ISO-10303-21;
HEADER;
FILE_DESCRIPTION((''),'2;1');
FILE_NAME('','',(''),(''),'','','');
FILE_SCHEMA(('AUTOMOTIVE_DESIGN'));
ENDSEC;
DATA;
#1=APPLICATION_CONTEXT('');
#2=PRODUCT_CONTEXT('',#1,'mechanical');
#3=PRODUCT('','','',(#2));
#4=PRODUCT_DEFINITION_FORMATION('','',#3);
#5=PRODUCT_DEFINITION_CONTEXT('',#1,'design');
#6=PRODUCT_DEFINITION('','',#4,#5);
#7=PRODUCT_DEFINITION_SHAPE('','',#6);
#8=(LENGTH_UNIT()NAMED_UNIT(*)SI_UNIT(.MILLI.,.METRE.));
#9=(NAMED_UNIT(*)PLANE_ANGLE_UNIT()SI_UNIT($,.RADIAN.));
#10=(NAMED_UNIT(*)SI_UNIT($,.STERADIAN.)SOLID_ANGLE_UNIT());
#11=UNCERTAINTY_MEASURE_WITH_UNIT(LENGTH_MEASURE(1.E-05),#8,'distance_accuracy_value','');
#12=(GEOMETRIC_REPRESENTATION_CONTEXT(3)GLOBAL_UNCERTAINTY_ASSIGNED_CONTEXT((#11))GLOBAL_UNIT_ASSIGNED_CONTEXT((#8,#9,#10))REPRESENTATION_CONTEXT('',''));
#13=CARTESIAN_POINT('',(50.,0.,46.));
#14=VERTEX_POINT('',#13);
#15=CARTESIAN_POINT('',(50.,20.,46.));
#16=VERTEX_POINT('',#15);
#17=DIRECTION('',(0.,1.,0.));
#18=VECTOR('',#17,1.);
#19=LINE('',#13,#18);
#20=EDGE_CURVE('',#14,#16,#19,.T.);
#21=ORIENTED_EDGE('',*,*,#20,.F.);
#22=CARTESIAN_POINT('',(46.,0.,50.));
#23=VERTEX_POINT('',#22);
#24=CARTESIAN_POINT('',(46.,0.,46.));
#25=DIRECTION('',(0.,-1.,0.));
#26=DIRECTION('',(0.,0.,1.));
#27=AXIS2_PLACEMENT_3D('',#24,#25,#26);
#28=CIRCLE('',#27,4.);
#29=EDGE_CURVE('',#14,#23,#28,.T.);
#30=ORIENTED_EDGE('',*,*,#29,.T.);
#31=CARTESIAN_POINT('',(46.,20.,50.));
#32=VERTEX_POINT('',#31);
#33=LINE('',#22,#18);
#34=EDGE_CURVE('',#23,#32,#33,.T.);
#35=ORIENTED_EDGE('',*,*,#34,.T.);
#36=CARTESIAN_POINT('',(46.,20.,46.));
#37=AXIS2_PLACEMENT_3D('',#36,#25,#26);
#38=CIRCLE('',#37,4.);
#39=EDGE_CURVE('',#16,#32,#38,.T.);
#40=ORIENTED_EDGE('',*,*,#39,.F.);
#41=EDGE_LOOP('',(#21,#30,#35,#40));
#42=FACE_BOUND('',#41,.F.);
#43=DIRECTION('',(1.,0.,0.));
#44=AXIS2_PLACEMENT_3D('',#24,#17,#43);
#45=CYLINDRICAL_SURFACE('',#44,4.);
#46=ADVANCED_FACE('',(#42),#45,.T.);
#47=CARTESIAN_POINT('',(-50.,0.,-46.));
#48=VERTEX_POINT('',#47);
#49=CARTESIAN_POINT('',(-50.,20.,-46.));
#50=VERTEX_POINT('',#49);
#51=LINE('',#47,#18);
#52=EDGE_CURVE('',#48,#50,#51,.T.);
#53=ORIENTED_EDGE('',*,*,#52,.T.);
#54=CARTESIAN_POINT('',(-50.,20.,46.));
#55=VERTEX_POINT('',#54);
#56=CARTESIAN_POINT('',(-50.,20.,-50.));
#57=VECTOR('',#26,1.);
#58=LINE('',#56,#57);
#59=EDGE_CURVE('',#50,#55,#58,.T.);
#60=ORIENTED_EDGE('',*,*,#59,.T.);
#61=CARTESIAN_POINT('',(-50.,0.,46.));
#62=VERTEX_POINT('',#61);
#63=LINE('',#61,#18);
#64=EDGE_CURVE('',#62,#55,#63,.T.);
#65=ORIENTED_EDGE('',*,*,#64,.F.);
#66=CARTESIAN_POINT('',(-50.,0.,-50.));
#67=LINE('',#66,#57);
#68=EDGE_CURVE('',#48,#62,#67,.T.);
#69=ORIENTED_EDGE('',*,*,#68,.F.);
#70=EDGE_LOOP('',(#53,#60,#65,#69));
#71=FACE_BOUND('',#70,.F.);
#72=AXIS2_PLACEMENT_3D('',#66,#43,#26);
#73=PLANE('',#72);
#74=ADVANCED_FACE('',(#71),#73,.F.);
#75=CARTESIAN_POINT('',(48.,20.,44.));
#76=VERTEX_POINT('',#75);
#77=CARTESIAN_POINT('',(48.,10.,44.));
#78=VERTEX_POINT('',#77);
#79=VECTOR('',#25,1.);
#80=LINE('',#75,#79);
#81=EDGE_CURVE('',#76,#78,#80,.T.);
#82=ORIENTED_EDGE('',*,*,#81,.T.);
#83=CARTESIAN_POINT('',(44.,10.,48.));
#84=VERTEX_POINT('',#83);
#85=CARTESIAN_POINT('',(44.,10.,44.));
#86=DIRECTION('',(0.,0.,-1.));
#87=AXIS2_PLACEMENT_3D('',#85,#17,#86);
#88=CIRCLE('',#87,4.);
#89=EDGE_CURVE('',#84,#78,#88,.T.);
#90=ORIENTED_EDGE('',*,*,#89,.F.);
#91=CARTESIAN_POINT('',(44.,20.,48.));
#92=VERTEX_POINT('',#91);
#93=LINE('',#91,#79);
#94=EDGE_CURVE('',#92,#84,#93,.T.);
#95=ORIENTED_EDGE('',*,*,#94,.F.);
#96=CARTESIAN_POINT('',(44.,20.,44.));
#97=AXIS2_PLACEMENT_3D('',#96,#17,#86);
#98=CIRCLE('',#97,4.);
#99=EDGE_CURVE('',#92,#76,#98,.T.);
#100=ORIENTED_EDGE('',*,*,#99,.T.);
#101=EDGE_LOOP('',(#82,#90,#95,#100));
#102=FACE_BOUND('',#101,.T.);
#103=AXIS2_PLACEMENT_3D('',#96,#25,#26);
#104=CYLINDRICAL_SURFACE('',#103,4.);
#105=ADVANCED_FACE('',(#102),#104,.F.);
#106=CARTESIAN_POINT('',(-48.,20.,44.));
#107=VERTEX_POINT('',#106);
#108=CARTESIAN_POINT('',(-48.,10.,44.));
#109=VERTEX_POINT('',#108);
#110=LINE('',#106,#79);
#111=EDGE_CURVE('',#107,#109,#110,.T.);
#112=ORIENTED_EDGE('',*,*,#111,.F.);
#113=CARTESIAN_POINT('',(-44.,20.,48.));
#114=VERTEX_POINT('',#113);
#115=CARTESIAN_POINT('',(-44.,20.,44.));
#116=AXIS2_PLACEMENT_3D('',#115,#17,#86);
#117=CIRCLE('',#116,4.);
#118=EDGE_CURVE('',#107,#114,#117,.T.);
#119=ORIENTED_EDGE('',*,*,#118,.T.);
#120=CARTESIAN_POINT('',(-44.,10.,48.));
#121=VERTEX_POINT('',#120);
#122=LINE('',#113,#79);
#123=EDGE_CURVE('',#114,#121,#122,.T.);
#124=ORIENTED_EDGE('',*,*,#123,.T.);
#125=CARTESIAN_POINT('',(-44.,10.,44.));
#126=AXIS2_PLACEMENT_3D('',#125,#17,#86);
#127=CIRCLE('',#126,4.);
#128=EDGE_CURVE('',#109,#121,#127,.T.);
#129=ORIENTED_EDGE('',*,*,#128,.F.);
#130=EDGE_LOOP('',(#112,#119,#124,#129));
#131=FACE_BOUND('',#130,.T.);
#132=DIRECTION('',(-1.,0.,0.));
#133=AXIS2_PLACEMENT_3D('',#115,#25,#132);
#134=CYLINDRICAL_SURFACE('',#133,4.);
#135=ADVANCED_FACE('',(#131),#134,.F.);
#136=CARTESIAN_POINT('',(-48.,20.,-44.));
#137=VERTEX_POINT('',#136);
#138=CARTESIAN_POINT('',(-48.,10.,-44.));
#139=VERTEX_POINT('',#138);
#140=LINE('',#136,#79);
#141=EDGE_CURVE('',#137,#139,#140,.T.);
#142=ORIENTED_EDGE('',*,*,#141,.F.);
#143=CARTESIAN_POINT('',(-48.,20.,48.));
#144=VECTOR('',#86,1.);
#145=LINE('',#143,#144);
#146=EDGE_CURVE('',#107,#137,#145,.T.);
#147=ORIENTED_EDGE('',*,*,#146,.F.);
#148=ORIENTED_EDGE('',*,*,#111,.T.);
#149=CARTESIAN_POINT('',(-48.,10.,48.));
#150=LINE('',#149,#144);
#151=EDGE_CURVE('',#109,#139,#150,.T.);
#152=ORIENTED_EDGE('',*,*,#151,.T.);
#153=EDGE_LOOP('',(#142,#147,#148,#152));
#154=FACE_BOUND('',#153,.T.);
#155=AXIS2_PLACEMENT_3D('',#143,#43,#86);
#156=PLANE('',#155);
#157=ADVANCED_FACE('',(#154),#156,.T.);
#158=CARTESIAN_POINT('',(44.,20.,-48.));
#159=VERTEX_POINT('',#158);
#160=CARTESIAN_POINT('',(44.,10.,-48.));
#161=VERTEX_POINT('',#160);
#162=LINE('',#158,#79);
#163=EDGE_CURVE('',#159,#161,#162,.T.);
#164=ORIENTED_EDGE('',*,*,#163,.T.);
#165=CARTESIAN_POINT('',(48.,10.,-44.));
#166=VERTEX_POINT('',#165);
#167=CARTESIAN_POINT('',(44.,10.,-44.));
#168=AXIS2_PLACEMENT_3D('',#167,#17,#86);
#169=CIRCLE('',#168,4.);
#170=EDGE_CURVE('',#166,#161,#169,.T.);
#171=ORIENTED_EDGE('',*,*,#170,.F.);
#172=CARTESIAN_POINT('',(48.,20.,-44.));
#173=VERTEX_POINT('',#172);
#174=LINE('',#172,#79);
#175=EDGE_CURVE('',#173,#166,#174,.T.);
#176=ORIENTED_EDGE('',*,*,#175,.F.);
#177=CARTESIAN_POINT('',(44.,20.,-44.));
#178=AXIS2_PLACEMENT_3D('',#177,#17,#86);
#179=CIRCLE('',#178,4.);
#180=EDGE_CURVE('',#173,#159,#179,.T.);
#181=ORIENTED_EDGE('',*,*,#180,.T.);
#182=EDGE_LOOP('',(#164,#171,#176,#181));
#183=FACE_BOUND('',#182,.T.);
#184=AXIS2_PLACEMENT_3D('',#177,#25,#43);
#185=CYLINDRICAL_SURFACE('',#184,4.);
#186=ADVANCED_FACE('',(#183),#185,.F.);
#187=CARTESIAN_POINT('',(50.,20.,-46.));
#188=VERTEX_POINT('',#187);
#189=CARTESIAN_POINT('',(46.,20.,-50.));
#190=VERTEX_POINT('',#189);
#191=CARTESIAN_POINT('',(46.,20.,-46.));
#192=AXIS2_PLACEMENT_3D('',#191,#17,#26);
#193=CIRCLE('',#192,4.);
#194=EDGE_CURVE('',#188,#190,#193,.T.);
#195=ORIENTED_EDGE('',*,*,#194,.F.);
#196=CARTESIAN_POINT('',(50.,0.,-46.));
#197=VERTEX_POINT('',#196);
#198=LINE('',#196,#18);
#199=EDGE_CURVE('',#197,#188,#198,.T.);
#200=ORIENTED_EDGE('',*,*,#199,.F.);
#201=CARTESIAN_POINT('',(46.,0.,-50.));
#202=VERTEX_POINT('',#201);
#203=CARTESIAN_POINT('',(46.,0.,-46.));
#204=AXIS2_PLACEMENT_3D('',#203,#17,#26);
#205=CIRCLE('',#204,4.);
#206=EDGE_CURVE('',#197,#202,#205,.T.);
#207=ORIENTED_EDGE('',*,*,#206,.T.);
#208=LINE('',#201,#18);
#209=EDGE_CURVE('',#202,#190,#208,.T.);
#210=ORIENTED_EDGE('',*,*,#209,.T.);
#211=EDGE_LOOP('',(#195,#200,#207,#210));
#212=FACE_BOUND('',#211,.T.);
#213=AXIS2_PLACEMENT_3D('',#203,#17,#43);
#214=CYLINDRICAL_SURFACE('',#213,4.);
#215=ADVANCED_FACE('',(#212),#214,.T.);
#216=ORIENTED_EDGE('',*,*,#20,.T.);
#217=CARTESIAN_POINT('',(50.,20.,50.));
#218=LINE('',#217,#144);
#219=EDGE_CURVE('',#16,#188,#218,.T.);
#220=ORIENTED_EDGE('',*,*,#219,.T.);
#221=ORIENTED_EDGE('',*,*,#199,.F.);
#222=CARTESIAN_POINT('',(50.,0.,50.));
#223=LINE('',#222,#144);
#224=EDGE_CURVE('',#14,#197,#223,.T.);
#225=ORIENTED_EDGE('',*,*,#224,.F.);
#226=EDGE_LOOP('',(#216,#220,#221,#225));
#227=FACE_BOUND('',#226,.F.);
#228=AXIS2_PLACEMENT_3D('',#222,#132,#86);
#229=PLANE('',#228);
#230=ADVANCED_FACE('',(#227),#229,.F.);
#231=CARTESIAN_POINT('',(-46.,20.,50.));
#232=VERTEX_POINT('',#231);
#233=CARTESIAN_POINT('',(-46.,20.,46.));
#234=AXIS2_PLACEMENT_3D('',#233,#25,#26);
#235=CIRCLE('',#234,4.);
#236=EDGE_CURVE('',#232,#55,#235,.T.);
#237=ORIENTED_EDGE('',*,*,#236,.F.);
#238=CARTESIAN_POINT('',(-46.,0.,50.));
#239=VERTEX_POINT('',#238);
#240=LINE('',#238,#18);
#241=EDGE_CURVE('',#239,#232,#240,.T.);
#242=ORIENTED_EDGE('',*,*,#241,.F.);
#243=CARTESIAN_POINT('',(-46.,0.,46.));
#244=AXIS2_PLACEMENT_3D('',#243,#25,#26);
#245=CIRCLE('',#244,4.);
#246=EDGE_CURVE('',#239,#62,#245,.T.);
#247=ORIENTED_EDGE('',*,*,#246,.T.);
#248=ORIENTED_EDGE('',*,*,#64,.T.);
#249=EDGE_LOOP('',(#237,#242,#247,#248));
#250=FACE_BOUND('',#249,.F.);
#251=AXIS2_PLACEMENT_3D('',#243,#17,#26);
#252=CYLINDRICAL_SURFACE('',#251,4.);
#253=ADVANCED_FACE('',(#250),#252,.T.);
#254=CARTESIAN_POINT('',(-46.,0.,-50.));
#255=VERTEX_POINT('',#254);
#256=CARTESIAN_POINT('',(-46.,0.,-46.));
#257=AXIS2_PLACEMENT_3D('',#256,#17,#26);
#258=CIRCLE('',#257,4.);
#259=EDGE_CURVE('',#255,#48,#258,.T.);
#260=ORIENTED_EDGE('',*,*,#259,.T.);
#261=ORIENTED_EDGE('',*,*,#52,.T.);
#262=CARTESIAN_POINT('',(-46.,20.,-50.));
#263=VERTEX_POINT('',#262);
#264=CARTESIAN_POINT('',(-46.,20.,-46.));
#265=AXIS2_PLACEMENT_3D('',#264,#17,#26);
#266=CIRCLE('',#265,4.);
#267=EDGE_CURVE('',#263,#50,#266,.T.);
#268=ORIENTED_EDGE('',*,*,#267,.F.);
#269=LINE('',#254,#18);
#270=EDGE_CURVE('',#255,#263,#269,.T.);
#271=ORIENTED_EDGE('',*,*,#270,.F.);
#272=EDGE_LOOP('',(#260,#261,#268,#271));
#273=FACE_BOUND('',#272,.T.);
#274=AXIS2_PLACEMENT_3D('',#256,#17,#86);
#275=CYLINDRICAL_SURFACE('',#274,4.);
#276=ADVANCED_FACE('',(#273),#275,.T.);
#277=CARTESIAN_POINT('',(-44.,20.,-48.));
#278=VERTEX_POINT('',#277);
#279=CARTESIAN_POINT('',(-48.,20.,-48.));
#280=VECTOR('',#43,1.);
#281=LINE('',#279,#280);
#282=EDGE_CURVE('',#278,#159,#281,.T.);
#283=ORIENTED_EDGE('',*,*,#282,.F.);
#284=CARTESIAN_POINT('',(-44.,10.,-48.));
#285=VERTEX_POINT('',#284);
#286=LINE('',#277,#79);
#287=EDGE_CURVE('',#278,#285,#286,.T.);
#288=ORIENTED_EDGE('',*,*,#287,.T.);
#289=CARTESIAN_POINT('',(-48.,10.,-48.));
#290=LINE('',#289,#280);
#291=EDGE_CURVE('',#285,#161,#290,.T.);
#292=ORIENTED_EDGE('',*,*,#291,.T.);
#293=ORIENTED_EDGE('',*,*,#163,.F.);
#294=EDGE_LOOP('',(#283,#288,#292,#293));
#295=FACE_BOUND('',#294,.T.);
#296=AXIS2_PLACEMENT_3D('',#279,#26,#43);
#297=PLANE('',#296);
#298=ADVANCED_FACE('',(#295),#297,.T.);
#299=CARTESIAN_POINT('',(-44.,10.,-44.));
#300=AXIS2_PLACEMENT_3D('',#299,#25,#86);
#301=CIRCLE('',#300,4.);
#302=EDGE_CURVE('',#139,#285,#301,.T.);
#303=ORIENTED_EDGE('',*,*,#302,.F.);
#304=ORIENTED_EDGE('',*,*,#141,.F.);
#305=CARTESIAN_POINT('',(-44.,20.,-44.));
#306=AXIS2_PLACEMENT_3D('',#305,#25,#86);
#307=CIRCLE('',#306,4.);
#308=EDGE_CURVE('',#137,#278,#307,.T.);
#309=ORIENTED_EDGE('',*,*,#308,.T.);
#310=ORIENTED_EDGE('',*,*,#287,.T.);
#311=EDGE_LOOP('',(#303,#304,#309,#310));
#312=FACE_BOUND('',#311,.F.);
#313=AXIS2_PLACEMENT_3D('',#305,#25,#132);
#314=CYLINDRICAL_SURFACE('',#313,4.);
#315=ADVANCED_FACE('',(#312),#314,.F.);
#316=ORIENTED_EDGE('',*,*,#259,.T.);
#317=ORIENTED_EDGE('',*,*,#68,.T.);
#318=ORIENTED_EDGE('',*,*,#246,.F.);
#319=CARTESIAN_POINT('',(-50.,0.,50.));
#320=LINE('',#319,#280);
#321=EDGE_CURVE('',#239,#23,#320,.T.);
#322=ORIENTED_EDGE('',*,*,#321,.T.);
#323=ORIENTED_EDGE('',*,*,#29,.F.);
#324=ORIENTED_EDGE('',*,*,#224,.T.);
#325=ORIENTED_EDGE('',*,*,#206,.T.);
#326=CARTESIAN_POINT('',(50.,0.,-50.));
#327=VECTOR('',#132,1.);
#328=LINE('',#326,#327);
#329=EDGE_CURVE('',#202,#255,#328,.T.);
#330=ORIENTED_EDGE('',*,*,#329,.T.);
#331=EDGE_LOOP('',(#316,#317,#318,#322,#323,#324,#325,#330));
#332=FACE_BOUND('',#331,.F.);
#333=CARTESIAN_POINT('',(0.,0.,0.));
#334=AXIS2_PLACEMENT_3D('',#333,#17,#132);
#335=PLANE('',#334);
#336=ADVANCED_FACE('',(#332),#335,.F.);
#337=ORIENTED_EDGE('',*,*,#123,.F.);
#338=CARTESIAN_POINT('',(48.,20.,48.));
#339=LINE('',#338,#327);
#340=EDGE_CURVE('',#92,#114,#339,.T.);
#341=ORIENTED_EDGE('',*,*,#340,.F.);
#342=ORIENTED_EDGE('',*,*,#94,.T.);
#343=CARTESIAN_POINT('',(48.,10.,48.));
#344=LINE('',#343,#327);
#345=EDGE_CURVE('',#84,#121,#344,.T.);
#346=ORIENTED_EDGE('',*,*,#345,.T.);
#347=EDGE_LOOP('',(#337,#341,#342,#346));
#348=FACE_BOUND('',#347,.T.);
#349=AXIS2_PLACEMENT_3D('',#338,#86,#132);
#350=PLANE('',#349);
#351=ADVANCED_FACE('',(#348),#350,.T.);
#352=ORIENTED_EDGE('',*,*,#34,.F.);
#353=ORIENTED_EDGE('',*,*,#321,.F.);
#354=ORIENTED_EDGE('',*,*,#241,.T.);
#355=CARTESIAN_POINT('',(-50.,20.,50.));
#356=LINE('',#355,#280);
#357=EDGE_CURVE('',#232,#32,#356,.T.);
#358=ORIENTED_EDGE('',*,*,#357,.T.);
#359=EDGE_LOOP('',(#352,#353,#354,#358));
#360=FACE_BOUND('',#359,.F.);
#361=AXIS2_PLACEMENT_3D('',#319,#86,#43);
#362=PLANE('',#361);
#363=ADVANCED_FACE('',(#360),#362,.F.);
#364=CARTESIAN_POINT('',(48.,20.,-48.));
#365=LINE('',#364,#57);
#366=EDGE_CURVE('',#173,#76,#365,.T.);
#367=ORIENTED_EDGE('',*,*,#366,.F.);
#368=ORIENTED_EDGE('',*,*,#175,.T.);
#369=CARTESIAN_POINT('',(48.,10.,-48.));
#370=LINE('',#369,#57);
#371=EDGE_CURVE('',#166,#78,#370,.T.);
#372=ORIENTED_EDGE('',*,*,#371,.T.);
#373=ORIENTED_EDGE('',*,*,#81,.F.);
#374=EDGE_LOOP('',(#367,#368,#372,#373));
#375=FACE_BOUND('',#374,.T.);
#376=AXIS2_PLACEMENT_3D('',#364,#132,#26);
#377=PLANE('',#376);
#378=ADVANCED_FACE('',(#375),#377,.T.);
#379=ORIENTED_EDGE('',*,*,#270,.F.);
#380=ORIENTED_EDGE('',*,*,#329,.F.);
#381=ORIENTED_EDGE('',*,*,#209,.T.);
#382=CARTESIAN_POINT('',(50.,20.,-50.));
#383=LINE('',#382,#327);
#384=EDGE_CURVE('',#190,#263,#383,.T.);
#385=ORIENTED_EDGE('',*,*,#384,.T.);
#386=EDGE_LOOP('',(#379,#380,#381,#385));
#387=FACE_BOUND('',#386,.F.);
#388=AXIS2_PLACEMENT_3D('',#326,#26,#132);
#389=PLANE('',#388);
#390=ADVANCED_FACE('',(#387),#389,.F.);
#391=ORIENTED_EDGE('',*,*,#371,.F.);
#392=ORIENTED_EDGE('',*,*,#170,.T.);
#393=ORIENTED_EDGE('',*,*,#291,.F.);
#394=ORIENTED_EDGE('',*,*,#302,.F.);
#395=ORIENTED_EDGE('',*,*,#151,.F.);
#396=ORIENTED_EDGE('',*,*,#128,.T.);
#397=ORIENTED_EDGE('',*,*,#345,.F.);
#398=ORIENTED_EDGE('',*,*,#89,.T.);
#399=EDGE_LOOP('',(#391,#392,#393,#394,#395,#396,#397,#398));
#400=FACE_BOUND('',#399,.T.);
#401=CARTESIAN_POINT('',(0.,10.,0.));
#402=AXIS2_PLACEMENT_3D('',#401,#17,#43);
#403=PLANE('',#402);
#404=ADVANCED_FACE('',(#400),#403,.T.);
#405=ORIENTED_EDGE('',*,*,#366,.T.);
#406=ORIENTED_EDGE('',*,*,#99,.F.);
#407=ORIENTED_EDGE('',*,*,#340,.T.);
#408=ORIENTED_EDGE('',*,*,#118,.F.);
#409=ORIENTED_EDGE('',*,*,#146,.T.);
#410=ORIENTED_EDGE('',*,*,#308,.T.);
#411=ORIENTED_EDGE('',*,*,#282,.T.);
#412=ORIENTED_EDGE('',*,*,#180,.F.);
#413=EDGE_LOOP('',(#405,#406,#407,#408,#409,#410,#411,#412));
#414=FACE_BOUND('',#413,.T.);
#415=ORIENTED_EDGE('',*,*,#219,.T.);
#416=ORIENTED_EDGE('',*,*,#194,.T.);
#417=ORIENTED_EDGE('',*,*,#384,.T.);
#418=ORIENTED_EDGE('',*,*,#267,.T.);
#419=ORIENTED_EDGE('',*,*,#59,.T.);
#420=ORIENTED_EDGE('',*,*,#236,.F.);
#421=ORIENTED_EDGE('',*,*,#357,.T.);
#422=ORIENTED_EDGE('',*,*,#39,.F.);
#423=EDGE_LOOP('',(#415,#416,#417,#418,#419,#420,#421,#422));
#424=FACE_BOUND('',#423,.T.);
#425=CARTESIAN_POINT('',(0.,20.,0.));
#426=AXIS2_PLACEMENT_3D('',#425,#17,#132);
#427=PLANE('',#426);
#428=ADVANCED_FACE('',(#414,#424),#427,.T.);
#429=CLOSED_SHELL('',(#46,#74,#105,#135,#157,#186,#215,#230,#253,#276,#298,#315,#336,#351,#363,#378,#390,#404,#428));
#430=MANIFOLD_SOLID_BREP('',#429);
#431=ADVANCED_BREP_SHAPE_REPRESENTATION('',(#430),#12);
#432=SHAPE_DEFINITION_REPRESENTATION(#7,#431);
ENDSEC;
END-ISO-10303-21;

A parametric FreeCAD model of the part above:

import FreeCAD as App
import Part
import Sketcher

V = App.Vector


def edges_at(feature, points):
    """Names of the edges that pass closest to the given points."""
    edges = feature.Shape.Edges
    near = lambda p: min(range(len(edges)), key=lambda i: edges[i].distToShape(Part.Vertex(*p))[0])
    return sorted({f"Edge{near(p) + 1}" for p in points})


def add_polygon(sketch, points):
    """Adds a closed chain of lines whose ends are joined by coincident constraints."""
    first, n = sketch.GeometryCount, len(points)
    for a, b in zip(points, points[1:] + points[:1]):
        sketch.addGeometry(Part.LineSegment(App.Vector(*a, 0), App.Vector(*b, 0)), False)
    for i in range(n):
        sketch.addConstraint(Sketcher.Constraint("Coincident", first + i, 2, first + (i + 1) % n, 1))

doc = App.newDocument("Part")
params = doc.addObject("Spreadsheet::Sheet", "Params")
for row, (alias, value) in enumerate([
    ("sketch1_width", "100 mm"),
    ("pad1_length", "20 mm"),
    ("sketch2_width", "96 mm"),
    ("pocket1_length", "10 mm"),
    ("fillet_radius", "4 mm"),
], start=1):
    params.set(f"A{row}", alias)
    params.set(f"B{row}", "=" + value)
    params.setAlias(f"B{row}", alias)

body = doc.addObject("PartDesign::Body", "Body")

sketch1 = body.newObject("Sketcher::SketchObject", "Sketch")
sketch1.AttachmentSupport = (doc.getObject("XZ_Plane"), [""])
sketch1.MapMode = "FlatFace"
add_polygon(sketch1, [(50, 50), (50, -50), (-50, -50), (-50, 50)])
sketch1.addConstraint(Sketcher.Constraint("Vertical", 0))
sketch1.addConstraint(Sketcher.Constraint("Horizontal", 1))
sketch1.addConstraint(Sketcher.Constraint("Vertical", 2))
sketch1.addConstraint(Sketcher.Constraint("Horizontal", 3))
sketch1.addConstraint(Sketcher.Constraint("Symmetric", 0, 2, 2, 2, -1, 1))
sketch1.addConstraint(Sketcher.Constraint("Equal", 3, 0))
sketch1.addConstraint(Sketcher.Constraint("DistanceX", 1, 2, 1, 1, 100.0))
sketch1.setExpression("Constraints[10]", "Params.sketch1_width")
pad1 = body.newObject("PartDesign::Pad", "Pad")
pad1.Profile = sketch1
pad1.setExpression("Length", "Params.pad1_length")
pad1.Reversed = True

sketch2 = body.newObject("Sketcher::SketchObject", "Sketch001")
sketch2.AttachmentSupport = (doc.getObject("XZ_Plane"), [""])
sketch2.MapMode = "FlatFace"
sketch2.AttachmentOffset = App.Placement(V(0, 0, -20), App.Rotation())
add_polygon(sketch2, [(48, -48), (-48, -48), (-48, 48), (48, 48)])
sketch2.addConstraint(Sketcher.Constraint("Horizontal", 0))
sketch2.addConstraint(Sketcher.Constraint("Vertical", 1))
sketch2.addConstraint(Sketcher.Constraint("Horizontal", 2))
sketch2.addConstraint(Sketcher.Constraint("Vertical", 3))
sketch2.addConstraint(Sketcher.Constraint("Symmetric", 0, 2, 2, 2, -1, 1))
sketch2.addConstraint(Sketcher.Constraint("Equal", 2, 1))
sketch2.addConstraint(Sketcher.Constraint("DistanceX", 0, 2, 0, 1, 96.0))
sketch2.setExpression("Constraints[10]", "Params.sketch2_width")
pocket1 = body.newObject("PartDesign::Pocket", "Pocket")
pocket1.Profile = sketch2
pocket1.setExpression("Length", "Params.pocket1_length")
pocket1.Reversed = True
doc.recompute()

fillet = body.newObject("PartDesign::Fillet", "Fillet")
fillet.Base = (pocket1, edges_at(pocket1, [
    (-48, 15, 48),
    (-50, 10, 50),
    (-50, 10, -50),
    (-48, 15, -48),
    (50, 10, -50),
    (48, 15, -48),
    (50, 10, 50),
    (48, 15, 48),
]))
fillet.setExpression("Radius", "Params.fillet_radius")

doc.recompute()
